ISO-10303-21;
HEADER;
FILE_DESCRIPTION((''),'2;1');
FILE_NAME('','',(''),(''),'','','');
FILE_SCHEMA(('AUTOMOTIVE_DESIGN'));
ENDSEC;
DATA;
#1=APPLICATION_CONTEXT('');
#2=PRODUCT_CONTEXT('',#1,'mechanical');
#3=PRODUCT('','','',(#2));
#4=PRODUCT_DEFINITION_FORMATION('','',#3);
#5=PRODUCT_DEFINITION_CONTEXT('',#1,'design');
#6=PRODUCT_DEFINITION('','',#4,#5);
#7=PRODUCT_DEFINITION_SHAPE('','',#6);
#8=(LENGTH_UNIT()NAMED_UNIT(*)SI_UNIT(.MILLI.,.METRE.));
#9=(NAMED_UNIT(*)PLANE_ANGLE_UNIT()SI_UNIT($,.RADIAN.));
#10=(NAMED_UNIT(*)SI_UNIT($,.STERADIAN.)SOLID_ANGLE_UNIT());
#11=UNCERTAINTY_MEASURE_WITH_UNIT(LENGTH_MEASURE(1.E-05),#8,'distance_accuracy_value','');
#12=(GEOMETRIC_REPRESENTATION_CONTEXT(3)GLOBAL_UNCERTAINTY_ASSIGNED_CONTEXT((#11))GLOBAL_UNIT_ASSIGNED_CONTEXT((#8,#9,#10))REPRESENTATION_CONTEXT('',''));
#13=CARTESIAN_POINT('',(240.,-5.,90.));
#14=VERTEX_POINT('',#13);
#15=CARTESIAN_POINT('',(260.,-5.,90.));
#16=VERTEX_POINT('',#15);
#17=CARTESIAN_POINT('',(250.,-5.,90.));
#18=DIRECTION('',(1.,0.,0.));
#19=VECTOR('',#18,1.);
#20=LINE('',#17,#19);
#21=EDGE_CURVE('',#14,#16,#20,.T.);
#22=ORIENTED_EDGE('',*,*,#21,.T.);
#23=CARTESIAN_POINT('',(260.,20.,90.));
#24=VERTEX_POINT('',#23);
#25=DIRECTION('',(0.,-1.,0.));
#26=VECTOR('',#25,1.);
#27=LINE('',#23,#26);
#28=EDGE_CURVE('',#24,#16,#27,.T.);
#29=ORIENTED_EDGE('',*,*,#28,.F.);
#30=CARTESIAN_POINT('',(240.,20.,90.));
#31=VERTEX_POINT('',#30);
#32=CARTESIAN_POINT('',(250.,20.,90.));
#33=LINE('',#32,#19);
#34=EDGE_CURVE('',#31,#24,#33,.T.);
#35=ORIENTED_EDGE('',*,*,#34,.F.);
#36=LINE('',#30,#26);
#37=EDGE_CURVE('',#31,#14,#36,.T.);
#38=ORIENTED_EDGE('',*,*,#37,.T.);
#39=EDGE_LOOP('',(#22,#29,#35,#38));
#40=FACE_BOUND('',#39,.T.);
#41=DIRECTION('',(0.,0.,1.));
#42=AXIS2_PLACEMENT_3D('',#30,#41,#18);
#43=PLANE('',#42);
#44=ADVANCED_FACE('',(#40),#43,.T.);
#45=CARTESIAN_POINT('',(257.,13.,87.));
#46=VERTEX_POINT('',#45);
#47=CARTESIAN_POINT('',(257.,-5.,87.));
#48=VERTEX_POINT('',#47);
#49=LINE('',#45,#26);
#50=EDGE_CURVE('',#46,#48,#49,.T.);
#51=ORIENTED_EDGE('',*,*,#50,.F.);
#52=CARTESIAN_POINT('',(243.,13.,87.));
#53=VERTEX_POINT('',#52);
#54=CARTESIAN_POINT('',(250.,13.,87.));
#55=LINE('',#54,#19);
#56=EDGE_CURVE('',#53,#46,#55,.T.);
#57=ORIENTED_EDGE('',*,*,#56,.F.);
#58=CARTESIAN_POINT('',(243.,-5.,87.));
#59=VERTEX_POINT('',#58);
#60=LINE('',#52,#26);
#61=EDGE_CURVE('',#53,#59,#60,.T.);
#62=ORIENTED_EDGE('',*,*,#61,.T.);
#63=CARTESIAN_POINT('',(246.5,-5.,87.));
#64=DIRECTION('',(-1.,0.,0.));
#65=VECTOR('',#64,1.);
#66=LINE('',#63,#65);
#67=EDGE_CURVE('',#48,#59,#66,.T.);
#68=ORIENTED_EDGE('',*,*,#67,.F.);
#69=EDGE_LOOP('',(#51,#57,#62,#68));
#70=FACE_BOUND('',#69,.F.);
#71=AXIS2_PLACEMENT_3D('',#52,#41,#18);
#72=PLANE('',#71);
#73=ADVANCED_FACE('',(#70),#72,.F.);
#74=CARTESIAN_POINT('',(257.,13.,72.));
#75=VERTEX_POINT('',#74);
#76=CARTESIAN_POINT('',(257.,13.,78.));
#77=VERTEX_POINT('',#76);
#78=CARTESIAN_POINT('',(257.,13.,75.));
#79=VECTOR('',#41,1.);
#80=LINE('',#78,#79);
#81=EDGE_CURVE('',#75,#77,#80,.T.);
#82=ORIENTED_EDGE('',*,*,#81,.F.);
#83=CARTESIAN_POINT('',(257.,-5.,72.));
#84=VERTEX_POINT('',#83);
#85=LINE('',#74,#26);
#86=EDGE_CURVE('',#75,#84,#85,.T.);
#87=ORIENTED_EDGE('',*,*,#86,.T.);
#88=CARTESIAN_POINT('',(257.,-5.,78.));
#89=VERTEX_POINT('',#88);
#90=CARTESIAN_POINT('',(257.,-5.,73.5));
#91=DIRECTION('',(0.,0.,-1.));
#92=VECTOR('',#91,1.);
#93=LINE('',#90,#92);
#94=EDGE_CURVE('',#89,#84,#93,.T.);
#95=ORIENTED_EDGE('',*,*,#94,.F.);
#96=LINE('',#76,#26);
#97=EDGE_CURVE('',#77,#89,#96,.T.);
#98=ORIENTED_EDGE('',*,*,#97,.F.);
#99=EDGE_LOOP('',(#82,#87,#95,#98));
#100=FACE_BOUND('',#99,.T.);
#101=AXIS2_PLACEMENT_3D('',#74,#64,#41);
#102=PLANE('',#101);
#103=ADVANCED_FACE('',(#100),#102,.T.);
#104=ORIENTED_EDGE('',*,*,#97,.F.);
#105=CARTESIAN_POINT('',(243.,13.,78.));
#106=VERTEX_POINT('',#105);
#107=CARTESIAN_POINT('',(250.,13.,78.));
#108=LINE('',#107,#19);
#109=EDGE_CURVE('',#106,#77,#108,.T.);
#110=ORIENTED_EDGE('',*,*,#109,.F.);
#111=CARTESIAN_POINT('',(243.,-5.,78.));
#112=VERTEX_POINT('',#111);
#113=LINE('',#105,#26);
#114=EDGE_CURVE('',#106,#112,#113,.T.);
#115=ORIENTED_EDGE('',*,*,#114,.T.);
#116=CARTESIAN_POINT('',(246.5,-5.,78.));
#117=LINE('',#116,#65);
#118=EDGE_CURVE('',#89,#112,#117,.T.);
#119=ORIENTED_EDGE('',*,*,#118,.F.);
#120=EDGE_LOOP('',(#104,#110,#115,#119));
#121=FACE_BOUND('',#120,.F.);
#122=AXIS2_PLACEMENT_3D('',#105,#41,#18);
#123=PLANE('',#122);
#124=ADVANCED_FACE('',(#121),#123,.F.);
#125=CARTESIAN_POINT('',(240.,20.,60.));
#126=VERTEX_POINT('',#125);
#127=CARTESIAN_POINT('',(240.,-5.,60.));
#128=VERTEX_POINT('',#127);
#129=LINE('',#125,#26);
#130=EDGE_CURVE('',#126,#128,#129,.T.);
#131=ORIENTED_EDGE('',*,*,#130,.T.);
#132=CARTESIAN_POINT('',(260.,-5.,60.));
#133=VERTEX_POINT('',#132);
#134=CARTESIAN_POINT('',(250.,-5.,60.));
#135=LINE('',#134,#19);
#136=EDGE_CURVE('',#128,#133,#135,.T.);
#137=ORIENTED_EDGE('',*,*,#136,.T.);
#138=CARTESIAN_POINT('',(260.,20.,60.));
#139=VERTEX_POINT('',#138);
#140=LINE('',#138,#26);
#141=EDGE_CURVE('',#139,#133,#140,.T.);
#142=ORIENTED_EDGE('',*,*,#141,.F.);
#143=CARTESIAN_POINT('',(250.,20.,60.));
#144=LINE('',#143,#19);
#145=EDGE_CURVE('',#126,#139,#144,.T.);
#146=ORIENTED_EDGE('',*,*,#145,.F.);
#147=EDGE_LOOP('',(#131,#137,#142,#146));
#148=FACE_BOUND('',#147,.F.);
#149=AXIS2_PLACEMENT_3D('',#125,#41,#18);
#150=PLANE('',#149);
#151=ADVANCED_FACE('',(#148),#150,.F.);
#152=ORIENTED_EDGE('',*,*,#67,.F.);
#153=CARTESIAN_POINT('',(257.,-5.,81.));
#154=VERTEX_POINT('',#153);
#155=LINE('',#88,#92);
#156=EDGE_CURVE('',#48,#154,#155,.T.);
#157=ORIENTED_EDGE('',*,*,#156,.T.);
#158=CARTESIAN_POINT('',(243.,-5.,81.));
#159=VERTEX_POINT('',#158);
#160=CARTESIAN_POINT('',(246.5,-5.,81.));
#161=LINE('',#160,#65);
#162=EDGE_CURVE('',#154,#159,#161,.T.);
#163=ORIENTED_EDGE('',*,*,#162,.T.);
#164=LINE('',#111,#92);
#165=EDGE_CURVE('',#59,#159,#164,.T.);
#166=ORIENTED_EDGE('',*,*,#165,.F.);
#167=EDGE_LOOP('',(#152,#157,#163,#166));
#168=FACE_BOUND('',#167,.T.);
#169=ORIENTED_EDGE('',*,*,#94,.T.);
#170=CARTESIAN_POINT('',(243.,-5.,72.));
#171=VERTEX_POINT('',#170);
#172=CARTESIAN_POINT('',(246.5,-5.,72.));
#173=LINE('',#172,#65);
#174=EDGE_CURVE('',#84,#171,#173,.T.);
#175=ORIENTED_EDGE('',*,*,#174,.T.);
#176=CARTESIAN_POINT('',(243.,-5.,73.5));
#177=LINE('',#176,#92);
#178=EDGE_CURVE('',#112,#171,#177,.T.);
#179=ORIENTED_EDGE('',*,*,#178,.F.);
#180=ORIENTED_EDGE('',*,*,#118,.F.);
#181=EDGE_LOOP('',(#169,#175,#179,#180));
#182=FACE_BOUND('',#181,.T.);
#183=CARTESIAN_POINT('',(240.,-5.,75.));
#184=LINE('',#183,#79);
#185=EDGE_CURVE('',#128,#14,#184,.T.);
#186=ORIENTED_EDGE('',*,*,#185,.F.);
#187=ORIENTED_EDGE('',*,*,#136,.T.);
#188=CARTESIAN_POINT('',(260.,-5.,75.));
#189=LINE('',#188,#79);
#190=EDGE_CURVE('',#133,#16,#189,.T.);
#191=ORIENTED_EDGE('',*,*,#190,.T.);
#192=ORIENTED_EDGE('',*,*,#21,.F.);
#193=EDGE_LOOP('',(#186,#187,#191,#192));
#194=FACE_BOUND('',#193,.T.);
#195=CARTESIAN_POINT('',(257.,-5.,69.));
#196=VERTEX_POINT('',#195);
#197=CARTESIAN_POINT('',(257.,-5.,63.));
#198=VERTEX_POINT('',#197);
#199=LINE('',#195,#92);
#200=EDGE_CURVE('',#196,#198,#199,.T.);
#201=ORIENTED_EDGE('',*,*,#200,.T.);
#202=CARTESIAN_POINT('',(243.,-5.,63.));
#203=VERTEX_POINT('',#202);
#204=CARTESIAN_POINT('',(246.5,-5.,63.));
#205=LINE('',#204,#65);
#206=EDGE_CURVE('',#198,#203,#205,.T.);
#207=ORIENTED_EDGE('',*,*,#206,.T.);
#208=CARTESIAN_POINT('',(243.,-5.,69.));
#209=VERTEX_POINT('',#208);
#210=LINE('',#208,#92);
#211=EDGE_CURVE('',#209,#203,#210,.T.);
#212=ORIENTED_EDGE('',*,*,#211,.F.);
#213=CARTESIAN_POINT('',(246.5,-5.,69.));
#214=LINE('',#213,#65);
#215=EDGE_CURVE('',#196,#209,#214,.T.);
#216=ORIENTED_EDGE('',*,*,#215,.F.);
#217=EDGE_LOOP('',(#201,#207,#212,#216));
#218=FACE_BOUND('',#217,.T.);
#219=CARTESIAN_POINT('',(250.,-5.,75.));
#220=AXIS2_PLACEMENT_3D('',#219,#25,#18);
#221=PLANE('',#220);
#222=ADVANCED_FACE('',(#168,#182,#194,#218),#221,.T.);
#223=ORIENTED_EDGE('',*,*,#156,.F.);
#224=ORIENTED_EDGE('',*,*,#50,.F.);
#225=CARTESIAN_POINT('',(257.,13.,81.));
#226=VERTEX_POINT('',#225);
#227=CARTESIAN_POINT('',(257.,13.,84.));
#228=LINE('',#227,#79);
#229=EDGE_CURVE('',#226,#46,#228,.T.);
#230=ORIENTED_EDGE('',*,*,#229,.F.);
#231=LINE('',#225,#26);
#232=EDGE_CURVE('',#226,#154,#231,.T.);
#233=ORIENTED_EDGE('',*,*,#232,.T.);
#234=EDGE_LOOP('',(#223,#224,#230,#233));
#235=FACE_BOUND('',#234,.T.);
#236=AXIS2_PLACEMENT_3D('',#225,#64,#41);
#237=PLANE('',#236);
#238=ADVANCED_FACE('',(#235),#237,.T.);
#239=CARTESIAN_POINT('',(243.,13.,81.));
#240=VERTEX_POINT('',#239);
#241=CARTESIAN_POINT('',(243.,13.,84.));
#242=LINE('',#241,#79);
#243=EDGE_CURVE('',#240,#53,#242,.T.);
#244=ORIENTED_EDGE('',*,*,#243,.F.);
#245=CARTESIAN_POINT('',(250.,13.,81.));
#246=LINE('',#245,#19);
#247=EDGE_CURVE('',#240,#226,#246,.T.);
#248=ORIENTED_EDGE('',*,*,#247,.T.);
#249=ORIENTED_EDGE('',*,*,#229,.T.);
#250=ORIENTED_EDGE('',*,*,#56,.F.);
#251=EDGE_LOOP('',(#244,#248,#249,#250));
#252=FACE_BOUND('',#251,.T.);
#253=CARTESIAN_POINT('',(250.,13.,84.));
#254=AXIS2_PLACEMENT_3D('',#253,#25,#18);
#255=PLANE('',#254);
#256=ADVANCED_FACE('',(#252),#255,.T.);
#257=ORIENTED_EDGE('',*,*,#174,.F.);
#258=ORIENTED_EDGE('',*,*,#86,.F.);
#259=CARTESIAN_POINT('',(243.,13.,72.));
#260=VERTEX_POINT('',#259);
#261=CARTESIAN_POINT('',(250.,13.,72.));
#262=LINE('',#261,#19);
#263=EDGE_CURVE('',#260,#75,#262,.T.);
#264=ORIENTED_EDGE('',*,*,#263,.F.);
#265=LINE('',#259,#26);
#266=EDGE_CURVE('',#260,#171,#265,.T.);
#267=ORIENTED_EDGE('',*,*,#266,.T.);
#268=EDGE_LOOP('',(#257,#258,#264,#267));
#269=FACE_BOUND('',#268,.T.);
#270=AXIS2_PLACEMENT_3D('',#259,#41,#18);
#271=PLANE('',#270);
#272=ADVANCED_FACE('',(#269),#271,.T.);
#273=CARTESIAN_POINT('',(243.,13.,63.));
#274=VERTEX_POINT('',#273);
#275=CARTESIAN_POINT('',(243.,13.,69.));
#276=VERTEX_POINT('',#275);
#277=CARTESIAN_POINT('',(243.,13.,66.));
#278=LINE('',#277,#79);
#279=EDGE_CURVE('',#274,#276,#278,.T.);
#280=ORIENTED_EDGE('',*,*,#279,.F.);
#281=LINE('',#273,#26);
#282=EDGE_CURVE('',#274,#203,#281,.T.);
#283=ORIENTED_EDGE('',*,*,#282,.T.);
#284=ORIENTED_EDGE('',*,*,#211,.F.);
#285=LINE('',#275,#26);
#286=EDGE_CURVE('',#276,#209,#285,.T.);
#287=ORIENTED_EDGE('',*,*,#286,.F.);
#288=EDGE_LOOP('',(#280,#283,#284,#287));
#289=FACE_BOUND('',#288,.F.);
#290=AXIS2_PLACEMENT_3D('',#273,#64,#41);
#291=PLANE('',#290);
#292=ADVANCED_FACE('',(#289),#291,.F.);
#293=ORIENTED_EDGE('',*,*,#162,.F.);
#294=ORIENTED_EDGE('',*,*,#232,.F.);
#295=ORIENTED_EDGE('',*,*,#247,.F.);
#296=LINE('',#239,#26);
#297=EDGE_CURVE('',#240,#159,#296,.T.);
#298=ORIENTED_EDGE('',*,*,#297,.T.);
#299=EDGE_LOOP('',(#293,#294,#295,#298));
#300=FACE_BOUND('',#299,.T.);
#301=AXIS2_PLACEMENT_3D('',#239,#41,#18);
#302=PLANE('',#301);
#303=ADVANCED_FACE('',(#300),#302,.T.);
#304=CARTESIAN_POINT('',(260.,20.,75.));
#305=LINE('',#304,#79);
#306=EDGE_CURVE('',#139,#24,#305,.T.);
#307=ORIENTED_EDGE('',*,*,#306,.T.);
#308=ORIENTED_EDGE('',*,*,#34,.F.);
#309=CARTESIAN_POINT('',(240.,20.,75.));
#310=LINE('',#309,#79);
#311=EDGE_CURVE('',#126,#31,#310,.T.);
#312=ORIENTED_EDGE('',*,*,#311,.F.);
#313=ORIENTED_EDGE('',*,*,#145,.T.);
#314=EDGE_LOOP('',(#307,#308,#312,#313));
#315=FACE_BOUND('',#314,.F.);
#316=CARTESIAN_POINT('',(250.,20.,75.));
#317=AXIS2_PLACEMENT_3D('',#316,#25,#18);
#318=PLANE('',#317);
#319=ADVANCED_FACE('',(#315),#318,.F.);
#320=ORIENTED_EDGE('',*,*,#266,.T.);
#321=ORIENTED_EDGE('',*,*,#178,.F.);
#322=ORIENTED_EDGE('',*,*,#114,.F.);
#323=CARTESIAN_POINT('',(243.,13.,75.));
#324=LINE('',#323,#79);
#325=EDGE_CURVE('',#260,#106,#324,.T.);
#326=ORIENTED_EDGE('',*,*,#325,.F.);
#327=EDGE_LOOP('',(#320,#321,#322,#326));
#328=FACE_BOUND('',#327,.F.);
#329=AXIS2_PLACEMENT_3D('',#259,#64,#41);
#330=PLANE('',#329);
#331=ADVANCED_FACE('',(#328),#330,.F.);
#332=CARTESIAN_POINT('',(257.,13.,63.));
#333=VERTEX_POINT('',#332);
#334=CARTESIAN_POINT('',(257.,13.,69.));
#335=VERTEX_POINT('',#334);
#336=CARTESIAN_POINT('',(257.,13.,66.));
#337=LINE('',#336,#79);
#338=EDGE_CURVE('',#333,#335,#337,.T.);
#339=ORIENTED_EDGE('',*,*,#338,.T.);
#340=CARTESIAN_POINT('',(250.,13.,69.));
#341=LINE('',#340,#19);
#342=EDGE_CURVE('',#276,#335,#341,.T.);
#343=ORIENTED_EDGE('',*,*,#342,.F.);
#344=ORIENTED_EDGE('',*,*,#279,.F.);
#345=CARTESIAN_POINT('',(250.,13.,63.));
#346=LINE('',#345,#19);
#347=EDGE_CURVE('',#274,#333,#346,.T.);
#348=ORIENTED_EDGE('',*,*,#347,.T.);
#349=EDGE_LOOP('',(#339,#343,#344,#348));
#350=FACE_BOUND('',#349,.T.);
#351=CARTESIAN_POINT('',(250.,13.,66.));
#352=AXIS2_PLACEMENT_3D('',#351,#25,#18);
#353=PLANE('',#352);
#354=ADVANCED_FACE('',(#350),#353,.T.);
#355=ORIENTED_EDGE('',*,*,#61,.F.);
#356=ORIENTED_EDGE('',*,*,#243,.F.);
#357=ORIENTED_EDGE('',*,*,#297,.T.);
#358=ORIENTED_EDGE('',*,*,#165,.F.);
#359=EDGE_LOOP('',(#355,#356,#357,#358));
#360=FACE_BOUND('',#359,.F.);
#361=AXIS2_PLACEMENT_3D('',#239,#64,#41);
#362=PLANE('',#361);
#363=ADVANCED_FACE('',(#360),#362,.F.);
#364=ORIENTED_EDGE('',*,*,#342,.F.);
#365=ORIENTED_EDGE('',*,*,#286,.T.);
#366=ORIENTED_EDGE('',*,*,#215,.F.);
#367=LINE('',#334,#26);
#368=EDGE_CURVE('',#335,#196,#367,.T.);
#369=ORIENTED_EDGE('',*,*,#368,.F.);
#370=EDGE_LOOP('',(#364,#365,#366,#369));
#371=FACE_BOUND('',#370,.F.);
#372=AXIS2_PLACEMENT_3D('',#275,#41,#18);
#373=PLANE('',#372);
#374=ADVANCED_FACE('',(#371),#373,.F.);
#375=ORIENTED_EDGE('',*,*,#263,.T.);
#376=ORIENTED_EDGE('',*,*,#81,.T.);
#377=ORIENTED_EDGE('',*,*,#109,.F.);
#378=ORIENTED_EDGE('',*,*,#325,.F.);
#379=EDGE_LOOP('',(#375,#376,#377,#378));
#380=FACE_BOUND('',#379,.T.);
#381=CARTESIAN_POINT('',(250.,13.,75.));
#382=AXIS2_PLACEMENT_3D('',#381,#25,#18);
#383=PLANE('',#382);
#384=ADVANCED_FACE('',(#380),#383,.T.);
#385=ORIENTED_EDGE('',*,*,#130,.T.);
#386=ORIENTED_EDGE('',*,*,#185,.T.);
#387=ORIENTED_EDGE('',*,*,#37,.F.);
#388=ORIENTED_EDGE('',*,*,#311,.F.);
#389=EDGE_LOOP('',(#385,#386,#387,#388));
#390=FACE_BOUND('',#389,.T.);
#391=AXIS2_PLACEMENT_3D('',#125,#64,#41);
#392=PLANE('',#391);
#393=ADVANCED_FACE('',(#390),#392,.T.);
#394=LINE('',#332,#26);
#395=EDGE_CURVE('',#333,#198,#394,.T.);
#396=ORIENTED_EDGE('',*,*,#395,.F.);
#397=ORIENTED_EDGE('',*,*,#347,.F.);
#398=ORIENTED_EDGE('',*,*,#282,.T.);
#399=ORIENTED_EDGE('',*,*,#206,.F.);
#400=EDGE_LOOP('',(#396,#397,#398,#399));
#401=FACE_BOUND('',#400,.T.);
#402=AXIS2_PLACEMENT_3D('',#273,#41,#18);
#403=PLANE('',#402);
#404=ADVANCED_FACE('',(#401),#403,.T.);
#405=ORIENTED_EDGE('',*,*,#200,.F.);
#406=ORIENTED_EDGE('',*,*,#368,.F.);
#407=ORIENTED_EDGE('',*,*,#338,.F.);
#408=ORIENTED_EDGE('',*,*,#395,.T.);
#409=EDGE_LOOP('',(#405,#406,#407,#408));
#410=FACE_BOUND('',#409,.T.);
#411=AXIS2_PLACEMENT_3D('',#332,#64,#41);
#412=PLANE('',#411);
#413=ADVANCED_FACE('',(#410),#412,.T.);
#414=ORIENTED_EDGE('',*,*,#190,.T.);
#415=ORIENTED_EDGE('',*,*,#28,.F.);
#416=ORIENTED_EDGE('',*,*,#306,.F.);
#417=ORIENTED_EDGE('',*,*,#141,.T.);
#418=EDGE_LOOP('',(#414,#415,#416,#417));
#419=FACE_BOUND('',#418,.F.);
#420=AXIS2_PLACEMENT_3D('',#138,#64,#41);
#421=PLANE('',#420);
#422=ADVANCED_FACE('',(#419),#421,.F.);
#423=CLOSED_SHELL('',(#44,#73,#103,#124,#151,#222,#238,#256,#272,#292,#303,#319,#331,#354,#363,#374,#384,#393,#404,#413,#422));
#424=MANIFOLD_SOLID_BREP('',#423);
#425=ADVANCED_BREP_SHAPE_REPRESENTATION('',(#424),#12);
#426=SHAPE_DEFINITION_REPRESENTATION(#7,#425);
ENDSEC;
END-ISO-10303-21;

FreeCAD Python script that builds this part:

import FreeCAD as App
import Part
import Sketcher
Q = App.Units.Quantity


def add_polygon(sketch, points):
    """Adds a closed chain of lines whose ends are joined by coincident constraints."""
    first, n = sketch.GeometryCount, len(points)
    for a, b in zip(points, points[1:] + points[:1]):
        sketch.addGeometry(Part.LineSegment(App.Vector(*a, 0), App.Vector(*b, 0)), False)
    for i in range(n):
        sketch.addConstraint(Sketcher.Constraint("Coincident", first + i, 2, first + (i + 1) % n, 1))

doc = App.newDocument("Part")
body = doc.addObject("PartDesign::Body", "Body")

# Sketch on XY plane
sketch1 = body.newObject("Sketcher::SketchObject", "Sketch")
sketch1.AttachmentSupport = (doc.getObject("XY_Plane"), [""])
sketch1.MapMode = "FlatFace"
add_polygon(sketch1, [(0, 6), (0, 0), (14, 0), (14, 6)])  # lines 0-3
sketch1.addConstraint(Sketcher.Constraint("Vertical", 0))
sketch1.addConstraint(Sketcher.Constraint("Horizontal", 1))
sketch1.addConstraint(Sketcher.Constraint("Vertical", 2))
sketch1.addConstraint(Sketcher.Constraint("Horizontal", 3))
sketch1.addConstraint(Sketcher.Constraint("Coincident", 0, 2, -1, 1))
sketch1.addConstraint(Sketcher.Constraint("DistanceX", 1, 1, 1, 2, Q("14 mm")))
sketch1.addConstraint(Sketcher.Constraint("DistanceY", 0, 2, 0, 1, Q("6 mm")))
pad1 = body.newObject("PartDesign::Pad", "Pad")
pad1.Profile = sketch1
pad1.Length = 20
body2 = doc.addObject("PartDesign::Body", "Body001")
doc.recompute()

body.Placement = App.Placement(App.Vector(0, 0, 0), App.Rotation(App.Vector(1, 0, 0), 90))
boolean = body2.newObject("PartDesign::Boolean", "Boolean")
boolean.Type = "Fuse"
boolean.addObjects([body])
body3 = doc.addObject("PartDesign::Body", "Body002")
doc.recompute()

body2.Placement = App.Placement(App.Vector(243, 13, 112), App.Rotation(App.Vector(0, 0, 1), 0))
boolean2 = body3.newObject("PartDesign::Boolean", "Boolean001")
boolean2.Type = "Fuse"
boolean2.addObjects([body2])
body4 = doc.addObject("PartDesign::Body", "Body003")

# Sketch on XY plane
sketch2 = body4.newObject("Sketcher::SketchObject", "Sketch001")
sketch2.AttachmentSupport = (doc.getObject("XY_Plane003"), [""])
sketch2.MapMode = "FlatFace"
add_polygon(sketch2, [(0, 6), (0, 0), (14, 0), (14, 6)])  # lines 0-3
sketch2.addConstraint(Sketcher.Constraint("Vertical", 0))
sketch2.addConstraint(Sketcher.Constraint("Horizontal", 1))
sketch2.addConstraint(Sketcher.Constraint("Vertical", 2))
sketch2.addConstraint(Sketcher.Constraint("Horizontal", 3))
sketch2.addConstraint(Sketcher.Constraint("Coincident", 0, 2, -1, 1))
sketch2.addConstraint(Sketcher.Constraint("DistanceX", 1, 1, 1, 2, Q("14 mm")))
sketch2.addConstraint(Sketcher.Constraint("DistanceY", 0, 2, 0, 1, Q("6 mm")))
pad2 = body4.newObject("PartDesign::Pad", "Pad001")
pad2.Profile = sketch2
pad2.Length = 20
body5 = doc.addObject("PartDesign::Body", "Body004")
doc.recompute()

body4.Placement = App.Placement(App.Vector(0, 0, 0), App.Rotation(App.Vector(1, 0, 0), 90))
boolean3 = body5.newObject("PartDesign::Boolean", "Boolean002")
boolean3.Type = "Fuse"
boolean3.addObjects([body4])
body6 = doc.addObject("PartDesign::Body", "Body005")
doc.recompute()

body5.Placement = App.Placement(App.Vector(243, 13, 121), App.Rotation(App.Vector(0, 0, 1), 0))
boolean4 = body6.newObject("PartDesign::Boolean", "Boolean003")
boolean4.Type = "Fuse"
boolean4.addObjects([body5])
body7 = doc.addObject("PartDesign::Body", "Body006")

# Sketch on XY plane
sketch3 = body7.newObject("Sketcher::SketchObject", "Sketch002")
sketch3.AttachmentSupport = (doc.getObject("XY_Plane006"), [""])
sketch3.MapMode = "FlatFace"
add_polygon(sketch3, [(0, 6), (0, 0), (14, 0), (14, 6)])  # lines 0-3
sketch3.addConstraint(Sketcher.Constraint("Vertical", 0))
sketch3.addConstraint(Sketcher.Constraint("Horizontal", 1))
sketch3.addConstraint(Sketcher.Constraint("Vertical", 2))
sketch3.addConstraint(Sketcher.Constraint("Horizontal", 3))
sketch3.addConstraint(Sketcher.Constraint("Coincident", 0, 2, -1, 1))
sketch3.addConstraint(Sketcher.Constraint("DistanceX", 1, 1, 1, 2, Q("14 mm")))
sketch3.addConstraint(Sketcher.Constraint("DistanceY", 0, 2, 0, 1, Q("6 mm")))
pad3 = body7.newObject("PartDesign::Pad", "Pad002")
pad3.Profile = sketch3
pad3.Length = 20
body8 = doc.addObject("PartDesign::Body", "Body007")
doc.recompute()

body7.Placement = App.Placement(App.Vector(0, 0, 0), App.Rotation(App.Vector(1, 0, 0), 90))
boolean5 = body8.newObject("PartDesign::Boolean", "Boolean004")
boolean5.Type = "Fuse"
boolean5.addObjects([body7])
body9 = doc.addObject("PartDesign::Body", "Body008")
doc.recompute()

body8.Placement = App.Placement(App.Vector(243, 13, 103), App.Rotation(App.Vector(0, 0, 1), 0))
boolean6 = body9.newObject("PartDesign::Boolean", "Boolean005")
boolean6.Type = "Fuse"
boolean6.addObjects([body8])
body10 = doc.addObject("PartDesign::Body", "Body009")

# Sketch on XY plane
sketch4 = body10.newObject("Sketcher::SketchObject", "Sketch003")
sketch4.AttachmentSupport = (doc.getObject("XY_Plane009"), [""])
sketch4.MapMode = "FlatFace"
add_polygon(sketch4, [(0, 30), (0, 0), (20, 0), (20, 30)])  # lines 0-3
sketch4.addConstraint(Sketcher.Constraint("Vertical", 0))
sketch4.addConstraint(Sketcher.Constraint("Horizontal", 1))
sketch4.addConstraint(Sketcher.Constraint("Vertical", 2))
sketch4.addConstraint(Sketcher.Constraint("Horizontal", 3))
sketch4.addConstraint(Sketcher.Constraint("Coincident", 0, 2, -1, 1))
sketch4.addConstraint(Sketcher.Constraint("DistanceX", 1, 1, 1, 2, Q("20 mm")))
sketch4.addConstraint(Sketcher.Constraint("DistanceY", 0, 2, 0, 1, Q("30 mm")))
pad4 = body10.newObject("PartDesign::Pad", "Pad003")
pad4.Profile = sketch4
pad4.Length = 25
body11 = doc.addObject("PartDesign::Body", "Body010")
doc.recompute()

body10.Placement = App.Placement(App.Vector(0, 0, 0), App.Rotation(App.Vector(1, 0, 0), 90))
boolean7 = body11.newObject("PartDesign::Boolean", "Boolean006")
boolean7.Type = "Fuse"
boolean7.addObjects([body10])
body12 = doc.addObject("PartDesign::Body", "Body011")
doc.recompute()

body11.Placement = App.Placement(App.Vector(240, 20, 100), App.Rotation(App.Vector(0, 0, 1), 0))
boolean8 = body12.newObject("PartDesign::Boolean", "Boolean007")
boolean8.Type = "Fuse"
boolean8.addObjects([body11])
doc.recompute()

boolean9 = body12.newObject("PartDesign::Boolean", "Boolean008")
boolean9.Type = "Cut"
boolean9.addObjects([body9])
doc.recompute()

boolean10 = body12.newObject("PartDesign::Boolean", "Boolean009")
boolean10.Type = "Cut"
boolean10.addObjects([body6])
doc.recompute()

boolean11 = body12.newObject("PartDesign::Boolean", "Boolean010")
boolean11.Type = "Cut"
boolean11.addObjects([body3])
body13 = doc.addObject("PartDesign::Body", "Body012")
doc.recompute()

body12.Placement = App.Placement(App.Vector(0, 0, -40), App.Rotation(App.Vector(0, 0, 1), 0))
boolean12 = body13.newObject("PartDesign::Boolean", "Boolean011")
boolean12.Type = "Fuse"
boolean12.addObjects([body12])

doc.recompute()
